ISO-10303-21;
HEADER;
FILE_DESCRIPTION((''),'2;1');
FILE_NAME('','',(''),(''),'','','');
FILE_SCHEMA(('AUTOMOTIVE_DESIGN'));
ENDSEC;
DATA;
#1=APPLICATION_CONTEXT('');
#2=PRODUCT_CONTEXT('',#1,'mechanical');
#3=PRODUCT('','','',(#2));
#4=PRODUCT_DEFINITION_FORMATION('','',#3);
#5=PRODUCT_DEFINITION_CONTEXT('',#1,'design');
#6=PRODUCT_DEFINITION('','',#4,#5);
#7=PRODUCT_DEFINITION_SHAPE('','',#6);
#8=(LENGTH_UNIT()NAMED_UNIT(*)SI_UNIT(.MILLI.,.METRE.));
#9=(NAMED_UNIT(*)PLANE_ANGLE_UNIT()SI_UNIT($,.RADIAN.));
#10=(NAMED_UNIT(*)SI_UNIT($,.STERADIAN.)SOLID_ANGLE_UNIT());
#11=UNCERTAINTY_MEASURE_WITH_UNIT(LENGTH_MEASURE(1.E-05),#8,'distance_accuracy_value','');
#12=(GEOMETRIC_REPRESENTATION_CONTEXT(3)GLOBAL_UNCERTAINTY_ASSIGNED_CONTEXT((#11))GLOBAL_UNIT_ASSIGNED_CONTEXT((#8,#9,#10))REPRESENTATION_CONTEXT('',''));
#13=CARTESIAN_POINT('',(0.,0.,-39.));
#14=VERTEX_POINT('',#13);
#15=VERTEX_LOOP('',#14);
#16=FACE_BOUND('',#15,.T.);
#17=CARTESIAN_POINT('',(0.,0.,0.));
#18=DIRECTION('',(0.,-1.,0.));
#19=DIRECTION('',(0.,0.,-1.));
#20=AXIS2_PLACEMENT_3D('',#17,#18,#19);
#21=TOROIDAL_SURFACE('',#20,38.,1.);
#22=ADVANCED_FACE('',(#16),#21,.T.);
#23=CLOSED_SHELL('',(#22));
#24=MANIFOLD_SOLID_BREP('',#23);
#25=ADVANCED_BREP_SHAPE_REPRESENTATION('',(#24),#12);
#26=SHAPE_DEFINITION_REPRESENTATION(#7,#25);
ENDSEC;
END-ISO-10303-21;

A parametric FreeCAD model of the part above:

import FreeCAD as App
import Part
import Sketcher
from FreeCAD import Vector
Q = App.Units.Quantity

doc = App.newDocument("Part")
body = doc.addObject("PartDesign::Body", "Body")

sketch1 = doc.addObject("Sketcher::SketchObject", "Sketch")
body.addObject(sketch1)
sketch1.AttachmentSupport = (doc.XY_Plane, [""])
sketch1.MapMode = "FlatFace"
sketch1.addGeometry(Part.Circle(Vector(38, 0, 0), Vector(0, 0, 1), 1), False)
sketch1.addConstraint([
    Sketcher.Constraint("PointOnObject", 0, 3, -1),
    Sketcher.Constraint("Diameter", 0, Q("2 mm")),
    Sketcher.Constraint("DistanceX", -1, 1, 0, 3, Q("38 mm")),
])
revolution = doc.addObject("PartDesign::Revolution", "Revolution")
body.addObject(revolution)
revolution.Profile = sketch1
revolution.ReferenceAxis = (sketch1, ["V_Axis"])
revolution.Angle = 360

doc.recompute()
